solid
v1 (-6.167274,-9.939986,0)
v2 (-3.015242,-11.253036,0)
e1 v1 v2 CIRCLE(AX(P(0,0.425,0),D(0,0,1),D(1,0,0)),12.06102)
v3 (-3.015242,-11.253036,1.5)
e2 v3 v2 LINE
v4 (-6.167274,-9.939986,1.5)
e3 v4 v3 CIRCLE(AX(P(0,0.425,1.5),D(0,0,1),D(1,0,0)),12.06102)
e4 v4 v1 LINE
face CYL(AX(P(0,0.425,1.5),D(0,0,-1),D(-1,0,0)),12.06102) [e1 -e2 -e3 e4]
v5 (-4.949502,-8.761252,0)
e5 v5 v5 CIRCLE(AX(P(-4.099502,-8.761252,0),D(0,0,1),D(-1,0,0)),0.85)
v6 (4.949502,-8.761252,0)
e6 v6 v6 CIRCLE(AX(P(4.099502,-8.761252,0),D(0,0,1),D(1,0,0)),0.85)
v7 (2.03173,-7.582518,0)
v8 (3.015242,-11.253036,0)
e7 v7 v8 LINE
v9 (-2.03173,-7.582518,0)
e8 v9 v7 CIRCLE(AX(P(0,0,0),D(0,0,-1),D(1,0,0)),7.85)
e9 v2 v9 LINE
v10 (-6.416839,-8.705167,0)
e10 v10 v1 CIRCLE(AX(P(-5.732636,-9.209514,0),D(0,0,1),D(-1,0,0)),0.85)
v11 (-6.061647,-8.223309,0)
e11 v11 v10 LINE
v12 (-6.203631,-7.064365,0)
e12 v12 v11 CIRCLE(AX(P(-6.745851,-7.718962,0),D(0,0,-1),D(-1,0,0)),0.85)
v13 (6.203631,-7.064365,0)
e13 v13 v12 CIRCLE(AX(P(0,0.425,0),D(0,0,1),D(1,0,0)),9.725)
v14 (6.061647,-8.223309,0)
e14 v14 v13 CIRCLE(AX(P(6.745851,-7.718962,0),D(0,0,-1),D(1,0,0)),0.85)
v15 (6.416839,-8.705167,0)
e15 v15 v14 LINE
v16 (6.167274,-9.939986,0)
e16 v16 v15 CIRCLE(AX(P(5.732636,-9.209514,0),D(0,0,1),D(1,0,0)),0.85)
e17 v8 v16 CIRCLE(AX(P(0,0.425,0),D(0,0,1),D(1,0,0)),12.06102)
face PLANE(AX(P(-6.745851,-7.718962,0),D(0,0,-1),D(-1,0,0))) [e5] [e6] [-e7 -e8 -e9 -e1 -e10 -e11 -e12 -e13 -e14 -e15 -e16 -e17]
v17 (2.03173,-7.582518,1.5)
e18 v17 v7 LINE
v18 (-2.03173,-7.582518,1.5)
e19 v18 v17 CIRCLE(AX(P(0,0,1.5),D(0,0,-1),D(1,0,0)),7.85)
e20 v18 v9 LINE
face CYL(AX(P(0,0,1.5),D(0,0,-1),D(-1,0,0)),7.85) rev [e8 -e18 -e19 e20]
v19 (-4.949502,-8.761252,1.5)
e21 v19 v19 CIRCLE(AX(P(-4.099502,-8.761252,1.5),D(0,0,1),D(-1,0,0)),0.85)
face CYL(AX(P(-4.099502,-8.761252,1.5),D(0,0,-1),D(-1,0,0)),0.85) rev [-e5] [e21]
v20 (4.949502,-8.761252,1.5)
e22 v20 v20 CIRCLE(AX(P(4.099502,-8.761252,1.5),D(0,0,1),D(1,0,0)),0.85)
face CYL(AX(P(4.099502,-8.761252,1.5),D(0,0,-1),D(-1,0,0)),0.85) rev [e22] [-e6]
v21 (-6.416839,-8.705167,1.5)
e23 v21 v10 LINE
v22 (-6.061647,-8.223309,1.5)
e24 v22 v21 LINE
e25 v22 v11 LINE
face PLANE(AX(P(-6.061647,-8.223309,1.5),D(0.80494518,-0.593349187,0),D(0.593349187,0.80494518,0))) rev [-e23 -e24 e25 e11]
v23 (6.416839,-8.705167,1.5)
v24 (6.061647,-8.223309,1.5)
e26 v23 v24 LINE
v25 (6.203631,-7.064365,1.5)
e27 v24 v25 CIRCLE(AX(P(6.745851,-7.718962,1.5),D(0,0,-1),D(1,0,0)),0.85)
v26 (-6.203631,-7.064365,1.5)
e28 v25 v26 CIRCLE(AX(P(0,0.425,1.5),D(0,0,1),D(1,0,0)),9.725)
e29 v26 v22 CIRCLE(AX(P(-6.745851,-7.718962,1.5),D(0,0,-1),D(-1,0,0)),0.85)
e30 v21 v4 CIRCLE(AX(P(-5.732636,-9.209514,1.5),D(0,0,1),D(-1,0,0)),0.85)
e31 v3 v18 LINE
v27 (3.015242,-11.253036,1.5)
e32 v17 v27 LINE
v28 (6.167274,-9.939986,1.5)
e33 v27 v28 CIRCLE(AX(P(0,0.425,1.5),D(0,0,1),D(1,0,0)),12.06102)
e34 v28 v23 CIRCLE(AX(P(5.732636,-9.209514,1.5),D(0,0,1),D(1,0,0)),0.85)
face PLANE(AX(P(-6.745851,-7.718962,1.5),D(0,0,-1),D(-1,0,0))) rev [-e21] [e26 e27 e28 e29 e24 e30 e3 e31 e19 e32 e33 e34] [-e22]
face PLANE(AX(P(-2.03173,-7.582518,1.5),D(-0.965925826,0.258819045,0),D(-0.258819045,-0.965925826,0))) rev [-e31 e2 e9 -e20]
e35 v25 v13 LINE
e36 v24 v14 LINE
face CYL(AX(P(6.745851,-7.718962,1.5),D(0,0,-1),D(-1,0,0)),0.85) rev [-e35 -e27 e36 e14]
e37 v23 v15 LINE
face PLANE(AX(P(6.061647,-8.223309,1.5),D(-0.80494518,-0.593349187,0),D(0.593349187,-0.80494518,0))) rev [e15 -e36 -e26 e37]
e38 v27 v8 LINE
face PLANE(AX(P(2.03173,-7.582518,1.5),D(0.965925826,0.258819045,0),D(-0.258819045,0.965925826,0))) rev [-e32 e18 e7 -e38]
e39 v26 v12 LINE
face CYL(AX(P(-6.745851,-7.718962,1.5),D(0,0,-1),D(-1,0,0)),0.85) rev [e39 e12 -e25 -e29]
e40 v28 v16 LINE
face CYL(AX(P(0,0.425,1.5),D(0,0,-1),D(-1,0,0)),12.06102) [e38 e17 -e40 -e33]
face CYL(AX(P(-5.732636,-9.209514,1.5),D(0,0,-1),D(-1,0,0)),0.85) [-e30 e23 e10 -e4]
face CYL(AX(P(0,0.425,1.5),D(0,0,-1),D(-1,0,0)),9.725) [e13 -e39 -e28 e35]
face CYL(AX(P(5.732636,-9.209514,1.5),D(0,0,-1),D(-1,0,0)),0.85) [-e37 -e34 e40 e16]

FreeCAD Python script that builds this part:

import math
import FreeCAD as App
import Part
import Sketcher
Q = App.Units.Quantity

doc = App.newDocument("Part")
params = doc.addObject("Spreadsheet::Sheet", "Params")
for row, (alias, value) in enumerate([
    ("sketch1_diameter", "1.7 mm"),
    ("sketch1_radius", "7.85 mm"),
    ("sketch1_length", "3.8 mm"),
    ("pad1_length", "1.5 mm"),
], start=1):
    params.set(f"A{row}", alias)
    params.set(f"B{row}", "=" + value)
    params.setAlias(f"B{row}", alias)

body = doc.addObject("PartDesign::Body", "Body")

# Sketch on XY plane
sketch1 = body.newObject("Sketcher::SketchObject", "Sketch")
sketch1.AttachmentSupport = (doc.getObject("XY_Plane"), [""])
sketch1.MapMode = "FlatFace"
sketch1.addGeometry(Part.LineSegment(App.Vector(6.4, -8.7, 0), App.Vector(6.1, -8.2, 0)), False)
sketch1.addGeometry(Part.ArcOfCircle(Part.Circle(App.Vector(6.7, -7.7, 0), App.Vector(0, 0, 1), 0.8), math.radians(130), math.radians(216)), False)
sketch1.addGeometry(Part.ArcOfCircle(Part.Circle(App.Vector(0, 0.4, 0), App.Vector(0, 0, 1), 9.7), math.radians(-50), math.radians(230)), False)
sketch1.addGeometry(Part.ArcOfCircle(Part.Circle(App.Vector(-6.7, -7.7, 0), App.Vector(0, 0, 1), 0.8), math.radians(-36), math.radians(50)), False)
sketch1.addGeometry(Part.LineSegment(App.Vector(-6.1, -8.2, 0), App.Vector(-6.4, -8.7, 0)), False)
sketch1.addGeometry(Part.ArcOfCircle(Part.Circle(App.Vector(-5.7, -9.2, 0), App.Vector(0, 0, 1), 0.8), math.radians(144), math.radians(239)), False)
sketch1.addGeometry(Part.ArcOfCircle(Part.Circle(App.Vector(0, 0.4, 0), App.Vector(0, 0, 1), 12.1), math.radians(-120.75), math.radians(-104.48)), False)
sketch1.addGeometry(Part.LineSegment(App.Vector(-3, -11.3, 0), App.Vector(-2, -7.6, 0)), False)
sketch1.addGeometry(Part.ArcOfCircle(Part.Circle(App.Vector(0, 0, 0), App.Vector(0, 0, 1), 7.8), math.radians(-75), math.radians(255)), False)
sketch1.addGeometry(Part.LineSegment(App.Vector(2, -7.6, 0), App.Vector(3, -11.3, 0)), False)
sketch1.addGeometry(Part.ArcOfCircle(Part.Circle(App.Vector(0, 0.4, 0), App.Vector(0, 0, 1), 12.1), math.radians(-75.52), math.radians(-59.25)), False)
sketch1.addGeometry(Part.ArcOfCircle(Part.Circle(App.Vector(5.7, -9.2, 0), App.Vector(0, 0, 1), 0.8), math.radians(-59), math.radians(36)), False)
sketch1.addGeometry(Part.Circle(App.Vector(4.1, -8.8, 0), App.Vector(0, 0, 1), 0.8), False)
sketch1.addGeometry(Part.Circle(App.Vector(-4.1, -8.8, 0), App.Vector(0, 0, 1), 0.8), False)
sketch1.addConstraint(Sketcher.Constraint("Tangent", 0, 2, 1, 2))
sketch1.addConstraint(Sketcher.Constraint("Tangent", 1, 1, 2, 1))
sketch1.addConstraint(Sketcher.Constraint("Tangent", 2, 2, 3, 2))
sketch1.addConstraint(Sketcher.Constraint("Tangent", 3, 1, 4, 1))
sketch1.addConstraint(Sketcher.Constraint("Tangent", 4, 2, 5, 1))
sketch1.addConstraint(Sketcher.Constraint("Tangent", 5, 2, 6, 1))
sketch1.addConstraint(Sketcher.Constraint("Coincident", 6, 2, 7, 1))
sketch1.addConstraint(Sketcher.Constraint("Coincident", 7, 2, 8, 2))
sketch1.addConstraint(Sketcher.Constraint("Coincident", 8, 1, 9, 1))
sketch1.addConstraint(Sketcher.Constraint("Coincident", 9, 2, 10, 1))
sketch1.addConstraint(Sketcher.Constraint("Tangent", 10, 2, 11, 1))
sketch1.addConstraint(Sketcher.Constraint("Tangent", 11, 2, 0, 1))
sketch1.addConstraint(Sketcher.Constraint("Coincident", 8, 3, -1, 1))
sketch1.addConstraint(Sketcher.Constraint("Coincident", 6, 3, 2, 3))
sketch1.addConstraint(Sketcher.Constraint("Coincident", 10, 3, 2, 3))
sketch1.addConstraint(Sketcher.Constraint("Equal", 1, 3))
sketch1.addConstraint(Sketcher.Constraint("Equal", 3, 5))
sketch1.addConstraint(Sketcher.Constraint("Equal", 6, 10))
sketch1.addConstraint(Sketcher.Constraint("Equal", 5, 11))
sketch1.addConstraint(Sketcher.Constraint("Equal", 11, 12))
sketch1.addConstraint(Sketcher.Constraint("Equal", 12, 13))
sketch1.addConstraint(Sketcher.Constraint("Symmetric", 1, 3, 3, 3, -2))
sketch1.addConstraint(Sketcher.Constraint("Symmetric", 12, 3, 13, 3, -2))
sketch1.addConstraint(Sketcher.Constraint("Horizontal", 5, 3, 11, 3))
sketch1.addConstraint(Sketcher.Constraint("Horizontal", 7, 2, 8, 1))
sketch1.addConstraint(Sketcher.Constraint("Horizontal", 6, 2, 9, 2))
sketch1.addConstraint(Sketcher.Constraint("Diameter", 12, Q("1.7 mm")))
sketch1.addConstraint(Sketcher.Constraint("Angle", 7, Q("75 deg")))
sketch1.addConstraint(Sketcher.Constraint("Radius", 8, Q("7.85 mm")))
sketch1.addConstraint(Sketcher.Constraint("Radius", 2, Q("9.725 mm")))
sketch1.addConstraint(Sketcher.Constraint("Distance", 7, Q("3.8 mm")))
sketch1.addConstraint(Sketcher.Constraint("Radius", 6, Q("12.06102 mm")))
sketch1.addConstraint(Sketcher.Constraint("DistanceY", -1, 1, 2, 3, Q("0.425 mm")))
sketch1.addConstraint(Sketcher.Constraint("DistanceX", -1, 1, 12, 3, Q("4.099502 mm")))
sketch1.addConstraint(Sketcher.Constraint("DistanceX", 3, 3, 1, 3, Q("13.491701 mm")))
sketch1.addConstraint(Sketcher.Constraint("DistanceY", 12, 3, -1, 1, Q("8.761252 mm")))
sketch1.addConstraint(Sketcher.Constraint("DistanceY", 0, 2, -1, 1, Q("8.223309 mm")))
sketch1.setExpression("Constraints[26]", "Params.sketch1_diameter")
sketch1.setExpression("Constraints[28]", "Params.sketch1_radius")
sketch1.setExpression("Constraints[30]", "Params.sketch1_length")
pad1 = body.newObject("PartDesign::Pad", "Pad")
pad1.Profile = sketch1
pad1.setExpression("Length", "Params.pad1_length")

doc.recompute()
